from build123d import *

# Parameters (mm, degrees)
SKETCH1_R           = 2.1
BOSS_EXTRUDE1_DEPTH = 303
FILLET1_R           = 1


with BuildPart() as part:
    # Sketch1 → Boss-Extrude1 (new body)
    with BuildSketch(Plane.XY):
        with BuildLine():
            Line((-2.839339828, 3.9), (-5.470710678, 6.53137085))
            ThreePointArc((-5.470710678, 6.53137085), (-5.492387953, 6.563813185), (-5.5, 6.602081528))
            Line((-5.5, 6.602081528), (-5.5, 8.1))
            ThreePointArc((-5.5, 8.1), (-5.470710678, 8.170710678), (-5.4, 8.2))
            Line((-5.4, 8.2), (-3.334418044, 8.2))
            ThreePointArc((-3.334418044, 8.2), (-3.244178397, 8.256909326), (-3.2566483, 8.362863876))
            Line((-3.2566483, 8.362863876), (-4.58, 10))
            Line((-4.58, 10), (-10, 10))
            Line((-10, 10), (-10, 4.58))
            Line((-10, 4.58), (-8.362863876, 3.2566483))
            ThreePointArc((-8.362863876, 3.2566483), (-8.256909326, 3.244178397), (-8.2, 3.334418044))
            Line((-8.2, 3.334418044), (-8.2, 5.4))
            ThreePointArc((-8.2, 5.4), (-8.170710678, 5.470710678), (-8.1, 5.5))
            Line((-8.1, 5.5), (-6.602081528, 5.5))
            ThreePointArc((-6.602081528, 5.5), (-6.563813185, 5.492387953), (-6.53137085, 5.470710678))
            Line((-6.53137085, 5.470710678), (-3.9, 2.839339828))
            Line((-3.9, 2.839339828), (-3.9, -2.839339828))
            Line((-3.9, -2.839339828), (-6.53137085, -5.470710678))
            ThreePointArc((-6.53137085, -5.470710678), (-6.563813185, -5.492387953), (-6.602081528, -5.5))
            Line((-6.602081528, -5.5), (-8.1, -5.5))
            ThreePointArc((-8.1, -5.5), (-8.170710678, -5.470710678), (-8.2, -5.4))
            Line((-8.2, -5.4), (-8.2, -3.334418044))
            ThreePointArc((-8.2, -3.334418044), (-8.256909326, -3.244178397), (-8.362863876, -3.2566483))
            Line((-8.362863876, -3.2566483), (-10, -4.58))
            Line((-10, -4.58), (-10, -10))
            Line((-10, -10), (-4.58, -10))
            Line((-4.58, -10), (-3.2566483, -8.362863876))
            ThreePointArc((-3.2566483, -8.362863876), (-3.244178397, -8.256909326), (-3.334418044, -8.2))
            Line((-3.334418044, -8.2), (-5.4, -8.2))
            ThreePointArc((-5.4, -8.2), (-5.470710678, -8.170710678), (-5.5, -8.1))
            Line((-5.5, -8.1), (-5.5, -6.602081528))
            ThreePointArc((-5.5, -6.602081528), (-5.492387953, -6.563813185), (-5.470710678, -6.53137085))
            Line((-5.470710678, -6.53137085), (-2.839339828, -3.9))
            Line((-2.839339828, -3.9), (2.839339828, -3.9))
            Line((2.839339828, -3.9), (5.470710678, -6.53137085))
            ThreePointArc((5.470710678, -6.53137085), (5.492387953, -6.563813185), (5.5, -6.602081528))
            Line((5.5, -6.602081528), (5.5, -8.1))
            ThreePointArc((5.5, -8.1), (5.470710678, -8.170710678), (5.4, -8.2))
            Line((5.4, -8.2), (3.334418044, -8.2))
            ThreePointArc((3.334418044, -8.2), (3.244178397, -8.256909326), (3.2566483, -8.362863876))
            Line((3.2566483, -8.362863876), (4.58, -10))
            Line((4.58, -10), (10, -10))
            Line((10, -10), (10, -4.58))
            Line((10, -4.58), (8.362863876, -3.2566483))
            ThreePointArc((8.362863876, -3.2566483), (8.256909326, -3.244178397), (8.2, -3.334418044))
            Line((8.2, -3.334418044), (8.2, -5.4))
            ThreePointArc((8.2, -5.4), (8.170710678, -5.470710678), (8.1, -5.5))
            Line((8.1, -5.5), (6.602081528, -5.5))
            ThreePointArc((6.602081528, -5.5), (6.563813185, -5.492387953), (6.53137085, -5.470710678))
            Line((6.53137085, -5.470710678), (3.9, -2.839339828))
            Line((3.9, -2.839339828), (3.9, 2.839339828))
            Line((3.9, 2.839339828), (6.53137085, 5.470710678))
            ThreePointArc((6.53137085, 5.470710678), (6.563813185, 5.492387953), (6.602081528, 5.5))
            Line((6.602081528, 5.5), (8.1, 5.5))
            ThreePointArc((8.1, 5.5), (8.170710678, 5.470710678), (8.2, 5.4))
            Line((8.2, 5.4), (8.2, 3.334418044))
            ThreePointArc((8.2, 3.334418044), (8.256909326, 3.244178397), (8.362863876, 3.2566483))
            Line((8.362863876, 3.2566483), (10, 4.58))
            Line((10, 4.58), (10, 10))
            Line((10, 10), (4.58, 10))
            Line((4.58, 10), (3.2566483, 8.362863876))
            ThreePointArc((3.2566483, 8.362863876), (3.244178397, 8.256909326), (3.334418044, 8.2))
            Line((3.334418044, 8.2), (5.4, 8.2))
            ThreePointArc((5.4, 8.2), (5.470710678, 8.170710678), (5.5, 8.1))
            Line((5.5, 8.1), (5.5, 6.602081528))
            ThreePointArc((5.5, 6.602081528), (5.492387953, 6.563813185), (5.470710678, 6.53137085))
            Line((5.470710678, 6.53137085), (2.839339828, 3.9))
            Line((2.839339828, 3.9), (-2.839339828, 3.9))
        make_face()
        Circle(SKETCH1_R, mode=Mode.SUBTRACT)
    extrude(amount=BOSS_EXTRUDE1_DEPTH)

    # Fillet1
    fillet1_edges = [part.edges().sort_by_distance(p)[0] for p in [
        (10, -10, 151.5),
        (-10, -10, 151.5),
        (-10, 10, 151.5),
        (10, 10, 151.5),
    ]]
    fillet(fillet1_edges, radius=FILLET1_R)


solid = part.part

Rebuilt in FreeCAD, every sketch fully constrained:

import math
import FreeCAD as App
import Part
import Sketcher

V = App.Vector


def edges_at(feature, points):
    """Names of the edges that pass closest to the given points."""
    edges = feature.Shape.Edges
    near = lambda p: min(range(len(edges)), key=lambda i: edges[i].distToShape(Part.Vertex(*p))[0])
    return sorted({f"Edge{near(p) + 1}" for p in points})

doc = App.newDocument("Part")
body = doc.addObject("PartDesign::Body", "Body")

sketch1 = body.newObject("Sketcher::SketchObject", "Sketch")
sketch1.AttachmentSupport = (doc.getObject("XY_Plane"), [""])
sketch1.MapMode = "FlatFace"
sketch1.addGeometry(Part.LineSegment(V(-2.84, 3.9, 0), V(-5.47, 6.53, 0)), False)
sketch1.addGeometry(Part.ArcOfCircle(Part.Circle(V(-5.4, 6.6, 0), V(0, 0, 1), 0.1), math.radians(-180), math.radians(-135)), False)
sketch1.addGeometry(Part.LineSegment(V(-5.5, 6.6, 0), V(-5.5, 8.1, 0)), False)
sketch1.addGeometry(Part.ArcOfCircle(Part.Circle(V(-5.4, 8.1, 0), V(0, 0, 1), 0.1), math.radians(90), math.radians(180)), False)
sketch1.addGeometry(Part.LineSegment(V(-5.4, 8.2, 0), V(-3.33, 8.2, 0)), False)
sketch1.addGeometry(Part.ArcOfCircle(Part.Circle(V(-3.33, 8.3, 0), V(0, 0, 1), 0.1), math.radians(-90), math.radians(39)), False)
sketch1.addGeometry(Part.LineSegment(V(-3.26, 8.36, 0), V(-4.58, 10, 0)), False)
sketch1.addGeometry(Part.LineSegment(V(-4.58, 10, 0), V(-10, 10, 0)), False)
sketch1.addGeometry(Part.LineSegment(V(-10, 10, 0), V(-10, 4.58, 0)), False)
sketch1.addGeometry(Part.LineSegment(V(-10, 4.58, 0), V(-8.36, 3.26, 0)), False)
sketch1.addGeometry(Part.ArcOfCircle(Part.Circle(V(-8.3, 3.33, 0), V(0, 0, 1), 0.1), math.radians(-129), math.radians(0)), False)
sketch1.addGeometry(Part.LineSegment(V(-8.2, 3.33, 0), V(-8.2, 5.4, 0)), False)
sketch1.addGeometry(Part.ArcOfCircle(Part.Circle(V(-8.1, 5.4, 0), V(0, 0, 1), 0.1), math.radians(90), math.radians(180)), False)
sketch1.addGeometry(Part.LineSegment(V(-8.1, 5.5, 0), V(-6.6, 5.5, 0)), False)
sketch1.addGeometry(Part.ArcOfCircle(Part.Circle(V(-6.6, 5.4, 0), V(0, 0, 1), 0.1), math.radians(45), math.radians(90)), False)
sketch1.addGeometry(Part.LineSegment(V(-6.53, 5.47, 0), V(-3.9, 2.84, 0)), False)
sketch1.addGeometry(Part.LineSegment(V(-3.9, 2.84, 0), V(-3.9, -2.84, 0)), False)
sketch1.addGeometry(Part.LineSegment(V(-3.9, -2.84, 0), V(-6.53, -5.47, 0)), False)
sketch1.addGeometry(Part.ArcOfCircle(Part.Circle(V(-6.6, -5.4, 0), V(0, 0, 1), 0.1), math.radians(-90), math.radians(-45)), False)
sketch1.addGeometry(Part.LineSegment(V(-6.6, -5.5, 0), V(-8.1, -5.5, 0)), False)
sketch1.addGeometry(Part.ArcOfCircle(Part.Circle(V(-8.1, -5.4, 0), V(0, 0, 1), 0.1), math.radians(180), math.radians(270)), False)
sketch1.addGeometry(Part.LineSegment(V(-8.2, -5.4, 0), V(-8.2, -3.33, 0)), False)
sketch1.addGeometry(Part.ArcOfCircle(Part.Circle(V(-8.3, -3.33, 0), V(0, 0, 1), 0.1), math.radians(0), math.radians(129)), False)
sketch1.addGeometry(Part.LineSegment(V(-8.36, -3.26, 0), V(-10, -4.58, 0)), False)
sketch1.addGeometry(Part.LineSegment(V(-10, -4.58, 0), V(-10, -10, 0)), False)
sketch1.addGeometry(Part.LineSegment(V(-10, -10, 0), V(-4.58, -10, 0)), False)
sketch1.addGeometry(Part.LineSegment(V(-4.58, -10, 0), V(-3.26, -8.36, 0)), False)
sketch1.addGeometry(Part.ArcOfCircle(Part.Circle(V(-3.33, -8.3, 0), V(0, 0, 1), 0.1), math.radians(-39), math.radians(90)), False)
sketch1.addGeometry(Part.LineSegment(V(-3.33, -8.2, 0), V(-5.4, -8.2, 0)), False)
sketch1.addGeometry(Part.ArcOfCircle(Part.Circle(V(-5.4, -8.1, 0), V(0, 0, 1), 0.1), math.radians(180), math.radians(270)), False)
sketch1.addGeometry(Part.LineSegment(V(-5.5, -8.1, 0), V(-5.5, -6.6, 0)), False)
sketch1.addGeometry(Part.ArcOfCircle(Part.Circle(V(-5.4, -6.6, 0), V(0, 0, 1), 0.1), math.radians(135), math.radians(180)), False)
sketch1.addGeometry(Part.LineSegment(V(-5.47, -6.53, 0), V(-2.84, -3.9, 0)), False)
sketch1.addGeometry(Part.LineSegment(V(-2.84, -3.9, 0), V(2.84, -3.9, 0)), False)
sketch1.addGeometry(Part.LineSegment(V(2.84, -3.9, 0), V(5.47, -6.53, 0)), False)
sketch1.addGeometry(Part.ArcOfCircle(Part.Circle(V(5.4, -6.6, 0), V(0, 0, 1), 0.1), math.radians(0), math.radians(45)), False)
sketch1.addGeometry(Part.LineSegment(V(5.5, -6.6, 0), V(5.5, -8.1, 0)), False)
sketch1.addGeometry(Part.ArcOfCircle(Part.Circle(V(5.4, -8.1, 0), V(0, 0, 1), 0.1), math.radians(-90), math.radians(0)), False)
sketch1.addGeometry(Part.LineSegment(V(5.4, -8.2, 0), V(3.33, -8.2, 0)), False)
sketch1.addGeometry(Part.ArcOfCircle(Part.Circle(V(3.33, -8.3, 0), V(0, 0, 1), 0.1), math.radians(90), math.radians(219)), False)
sketch1.addGeometry(Part.LineSegment(V(3.26, -8.36, 0), V(4.58, -10, 0)), False)
sketch1.addGeometry(Part.LineSegment(V(4.58, -10, 0), V(10, -10, 0)), False)
sketch1.addGeometry(Part.LineSegment(V(10, -10, 0), V(10, -4.58, 0)), False)
sketch1.addGeometry(Part.LineSegment(V(10, -4.58, 0), V(8.36, -3.26, 0)), False)
sketch1.addGeometry(Part.ArcOfCircle(Part.Circle(V(8.3, -3.33, 0), V(0, 0, 1), 0.1), math.radians(51), math.radians(180)), False)
sketch1.addGeometry(Part.LineSegment(V(8.2, -3.33, 0), V(8.2, -5.4, 0)), False)
sketch1.addGeometry(Part.ArcOfCircle(Part.Circle(V(8.1, -5.4, 0), V(0, 0, 1), 0.1), math.radians(-90), math.radians(0)), False)
sketch1.addGeometry(Part.LineSegment(V(8.1, -5.5, 0), V(6.6, -5.5, 0)), False)
sketch1.addGeometry(Part.ArcOfCircle(Part.Circle(V(6.6, -5.4, 0), V(0, 0, 1), 0.1), math.radians(-135), math.radians(-90)), False)
sketch1.addGeometry(Part.LineSegment(V(6.53, -5.47, 0), V(3.9, -2.84, 0)), False)
sketch1.addGeometry(Part.LineSegment(V(3.9, -2.84, 0), V(3.9, 2.84, 0)), False)
sketch1.addGeometry(Part.LineSegment(V(3.9, 2.84, 0), V(6.53, 5.47, 0)), False)
sketch1.addGeometry(Part.ArcOfCircle(Part.Circle(V(6.6, 5.4, 0), V(0, 0, 1), 0.1), math.radians(90), math.radians(135)), False)
sketch1.addGeometry(Part.LineSegment(V(6.6, 5.5, 0), V(8.1, 5.5, 0)), False)
sketch1.addGeometry(Part.ArcOfCircle(Part.Circle(V(8.1, 5.4, 0), V(0, 0, 1), 0.1), math.radians(0), math.radians(90)), False)
sketch1.addGeometry(Part.LineSegment(V(8.2, 5.4, 0), V(8.2, 3.33, 0)), False)
sketch1.addGeometry(Part.ArcOfCircle(Part.Circle(V(8.3, 3.33, 0), V(0, 0, 1), 0.1), math.radians(180), math.radians(309)), False)
sketch1.addGeometry(Part.LineSegment(V(8.36, 3.26, 0), V(10, 4.58, 0)), False)
sketch1.addGeometry(Part.LineSegment(V(10, 4.58, 0), V(10, 10, 0)), False)
sketch1.addGeometry(Part.LineSegment(V(10, 10, 0), V(4.58, 10, 0)), False)
sketch1.addGeometry(Part.LineSegment(V(4.58, 10, 0), V(3.26, 8.36, 0)), False)
sketch1.addGeometry(Part.ArcOfCircle(Part.Circle(V(3.33, 8.3, 0), V(0, 0, 1), 0.1), math.radians(141), math.radians(270)), False)
sketch1.addGeometry(Part.LineSegment(V(3.33, 8.2, 0), V(5.4, 8.2, 0)), False)
sketch1.addGeometry(Part.ArcOfCircle(Part.Circle(V(5.4, 8.1, 0), V(0, 0, 1), 0.1), math.radians(0), math.radians(90)), False)
sketch1.addGeometry(Part.LineSegment(V(5.5, 8.1, 0), V(5.5, 6.6, 0)), False)
sketch1.addGeometry(Part.ArcOfCircle(Part.Circle(V(5.4, 6.6, 0), V(0, 0, 1), 0.1), math.radians(-45), math.radians(0)), False)
sketch1.addGeometry(Part.LineSegment(V(5.47, 6.53, 0), V(2.84, 3.9, 0)), False)
sketch1.addGeometry(Part.LineSegment(V(2.84, 3.9, 0), V(-2.84, 3.9, 0)), False)
sketch1.addGeometry(Part.Circle(V(0, 0, 0), V(0, 0, 1), 2.1), False)
sketch1.addConstraint(Sketcher.Constraint("Tangent", 0, 2, 1, 2))
sketch1.addConstraint(Sketcher.Constraint("Tangent", 1, 1, 2, 1))
sketch1.addConstraint(Sketcher.Constraint("Tangent", 2, 2, 3, 2))
sketch1.addConstraint(Sketcher.Constraint("Tangent", 3, 1, 4, 1))
sketch1.addConstraint(Sketcher.Constraint("Tangent", 4, 2, 5, 1))
sketch1.addConstraint(Sketcher.Constraint("Tangent", 5, 2, 6, 1))
sketch1.addConstraint(Sketcher.Constraint("Coincident", 6, 2, 7, 1))
sketch1.addConstraint(Sketcher.Constraint("Coincident", 7, 2, 8, 1))
sketch1.addConstraint(Sketcher.Constraint("Coincident", 8, 2, 9, 1))
sketch1.addConstraint(Sketcher.Constraint("Tangent", 9, 2, 10, 1))
sketch1.addConstraint(Sketcher.Constraint("Tangent", 10, 2, 11, 1))
sketch1.addConstraint(Sketcher.Constraint("Tangent", 11, 2, 12, 2))
sketch1.addConstraint(Sketcher.Constraint("Tangent", 12, 1, 13, 1))
sketch1.addConstraint(Sketcher.Constraint("Tangent", 13, 2, 14, 2))
sketch1.addConstraint(Sketcher.Constraint("Tangent", 14, 1, 15, 1))
sketch1.addConstraint(Sketcher.Constraint("Coincident", 15, 2, 16, 1))
sketch1.addConstraint(Sketcher.Constraint("Coincident", 16, 2, 17, 1))
sketch1.addConstraint(Sketcher.Constraint("Tangent", 17, 2, 18, 2))
sketch1.addConstraint(Sketcher.Constraint("Tangent", 18, 1, 19, 1))
sketch1.addConstraint(Sketcher.Constraint("Tangent", 19, 2, 20, 2))
sketch1.addConstraint(Sketcher.Constraint("Tangent", 20, 1, 21, 1))
sketch1.addConstraint(Sketcher.Constraint("Tangent", 21, 2, 22, 1))
sketch1.addConstraint(Sketcher.Constraint("Tangent", 22, 2, 23, 1))
sketch1.addConstraint(Sketcher.Constraint("Coincident", 23, 2, 24, 1))
sketch1.addConstraint(Sketcher.Constraint("Coincident", 24, 2, 25, 1))
sketch1.addConstraint(Sketcher.Constraint("Coincident", 25, 2, 26, 1))
sketch1.addConstraint(Sketcher.Constraint("Tangent", 26, 2, 27, 1))
sketch1.addConstraint(Sketcher.Constraint("Tangent", 27, 2, 28, 1))
sketch1.addConstraint(Sketcher.Constraint("Tangent", 28, 2, 29, 2))
sketch1.addConstraint(Sketcher.Constraint("Tangent", 29, 1, 30, 1))
sketch1.addConstraint(Sketcher.Constraint("Tangent", 30, 2, 31, 2))
sketch1.addConstraint(Sketcher.Constraint("Tangent", 31, 1, 32, 1))
sketch1.addConstraint(Sketcher.Constraint("Coincident", 32, 2, 33, 1))
sketch1.addConstraint(Sketcher.Constraint("Coincident", 33, 2, 34, 1))
sketch1.addConstraint(Sketcher.Constraint("Tangent", 34, 2, 35, 2))
sketch1.addConstraint(Sketcher.Constraint("Tangent", 35, 1, 36, 1))
sketch1.addConstraint(Sketcher.Constraint("Tangent", 36, 2, 37, 2))
sketch1.addConstraint(Sketcher.Constraint("Tangent", 37, 1, 38, 1))
sketch1.addConstraint(Sketcher.Constraint("Tangent", 38, 2, 39, 1))
sketch1.addConstraint(Sketcher.Constraint("Tangent", 39, 2, 40, 1))
sketch1.addConstraint(Sketcher.Constraint("Coincident", 40, 2, 41, 1))
sketch1.addConstraint(Sketcher.Constraint("Coincident", 41, 2, 42, 1))
sketch1.addConstraint(Sketcher.Constraint("Coincident", 42, 2, 43, 1))
sketch1.addConstraint(Sketcher.Constraint("Tangent", 43, 2, 44, 1))
sketch1.addConstraint(Sketcher.Constraint("Tangent", 44, 2, 45, 1))
sketch1.addConstraint(Sketcher.Constraint("Tangent", 45, 2, 46, 2))
sketch1.addConstraint(Sketcher.Constraint("Tangent", 46, 1, 47, 1))
sketch1.addConstraint(Sketcher.Constraint("Tangent", 47, 2, 48, 2))
sketch1.addConstraint(Sketcher.Constraint("Tangent", 48, 1, 49, 1))
sketch1.addConstraint(Sketcher.Constraint("Coincident", 49, 2, 50, 1))
sketch1.addConstraint(Sketcher.Constraint("Coincident", 50, 2, 51, 1))
sketch1.addConstraint(Sketcher.Constraint("Tangent", 51, 2, 52, 2))
sketch1.addConstraint(Sketcher.Constraint("Tangent", 52, 1, 53, 1))
sketch1.addConstraint(Sketcher.Constraint("Tangent", 53, 2, 54, 2))
sketch1.addConstraint(Sketcher.Constraint("Tangent", 54, 1, 55, 1))
sketch1.addConstraint(Sketcher.Constraint("Tangent", 55, 2, 56, 1))
sketch1.addConstraint(Sketcher.Constraint("Tangent", 56, 2, 57, 1))
sketch1.addConstraint(Sketcher.Constraint("Coincident", 57, 2, 58, 1))
sketch1.addConstraint(Sketcher.Constraint("Coincident", 58, 2, 59, 1))
sketch1.addConstraint(Sketcher.Constraint("Coincident", 59, 2, 60, 1))
sketch1.addConstraint(Sketcher.Constraint("Tangent", 60, 2, 61, 1))
sketch1.addConstraint(Sketcher.Constraint("Tangent", 61, 2, 62, 1))
sketch1.addConstraint(Sketcher.Constraint("Tangent", 62, 2, 63, 2))
sketch1.addConstraint(Sketcher.Constraint("Tangent", 63, 1, 64, 1))
sketch1.addConstraint(Sketcher.Constraint("Tangent", 64, 2, 65, 2))
sketch1.addConstraint(Sketcher.Constraint("Tangent", 65, 1, 66, 1))
sketch1.addConstraint(Sketcher.Constraint("Coincident", 66, 2, 67, 1))
sketch1.addConstraint(Sketcher.Constraint("Coincident", 67, 2, 0, 1))
sketch1.addConstraint(Sketcher.Constraint("Vertical", 2))
sketch1.addConstraint(Sketcher.Constraint("Horizontal", 4))
sketch1.addConstraint(Sketcher.Constraint("Horizontal", 7))
sketch1.addConstraint(Sketcher.Constraint("Vertical", 8))
sketch1.addConstraint(Sketcher.Constraint("Vertical", 11))
sketch1.addConstraint(Sketcher.Constraint("Horizontal", 13))
sketch1.addConstraint(Sketcher.Constraint("Vertical", 16))
sketch1.addConstraint(Sketcher.Constraint("Horizontal", 19))
sketch1.addConstraint(Sketcher.Constraint("Vertical", 21))
sketch1.addConstraint(Sketcher.Constraint("Vertical", 24))
sketch1.addConstraint(Sketcher.Constraint("Horizontal", 25))
sketch1.addConstraint(Sketcher.Constraint("Horizontal", 28))
sketch1.addConstraint(Sketcher.Constraint("Vertical", 30))
sketch1.addConstraint(Sketcher.Constraint("Horizontal", 33))
sketch1.addConstraint(Sketcher.Constraint("Vertical", 36))
sketch1.addConstraint(Sketcher.Constraint("Horizontal", 38))
sketch1.addConstraint(Sketcher.Constraint("Horizontal", 41))
sketch1.addConstraint(Sketcher.Constraint("Vertical", 42))
sketch1.addConstraint(Sketcher.Constraint("Vertical", 45))
sketch1.addConstraint(Sketcher.Constraint("Horizontal", 47))
sketch1.addConstraint(Sketcher.Constraint("Vertical", 50))
sketch1.addConstraint(Sketcher.Constraint("Horizontal", 53))
sketch1.addConstraint(Sketcher.Constraint("Vertical", 55))
sketch1.addConstraint(Sketcher.Constraint("Vertical", 58))
sketch1.addConstraint(Sketcher.Constraint("Horizontal", 59))
sketch1.addConstraint(Sketcher.Constraint("Horizontal", 62))
sketch1.addConstraint(Sketcher.Constraint("Vertical", 64))
sketch1.addConstraint(Sketcher.Constraint("Horizontal", 67))
sketch1.addConstraint(Sketcher.Constraint("Coincident", 68, 3, -1, 1))
sketch1.addConstraint(Sketcher.Constraint("Equal", 1, 3))
sketch1.addConstraint(Sketcher.Constraint("Equal", 3, 5))
sketch1.addConstraint(Sketcher.Constraint("Equal", 5, 10))
sketch1.addConstraint(Sketcher.Constraint("Equal", 10, 12))
sketch1.addConstraint(Sketcher.Constraint("Equal", 12, 14))
sketch1.addConstraint(Sketcher.Constraint("Equal", 14, 18))
sketch1.addConstraint(Sketcher.Constraint("Equal", 18, 20))
sketch1.addConstraint(Sketcher.Constraint("Equal", 20, 22))
sketch1.addConstraint(Sketcher.Constraint("Equal", 22, 27))
sketch1.addConstraint(Sketcher.Constraint("Equal", 27, 29))
sketch1.addConstraint(Sketcher.Constraint("Equal", 29, 31))
sketch1.addConstraint(Sketcher.Constraint("Equal", 31, 35))
sketch1.addConstraint(Sketcher.Constraint("Equal", 35, 37))
sketch1.addConstraint(Sketcher.Constraint("Equal", 37, 39))
sketch1.addConstraint(Sketcher.Constraint("Equal", 39, 44))
sketch1.addConstraint(Sketcher.Constraint("Equal", 44, 46))
sketch1.addConstraint(Sketcher.Constraint("Equal", 46, 48))
sketch1.addConstraint(Sketcher.Constraint("Equal", 48, 52))
sketch1.addConstraint(Sketcher.Constraint("Equal", 52, 54))
sketch1.addConstraint(Sketcher.Constraint("Equal", 54, 56))
sketch1.addConstraint(Sketcher.Constraint("Equal", 56, 61))
sketch1.addConstraint(Sketcher.Constraint("Equal", 61, 63))
sketch1.addConstraint(Sketcher.Constraint("Equal", 63, 65))
sketch1.addConstraint(Sketcher.Constraint("Symmetric", 1, 3, 35, 3, -1, 1))
sketch1.addConstraint(Sketcher.Constraint("Symmetric", 5, 3, 39, 3, -1, 1))
sketch1.addConstraint(Sketcher.Constraint("Symmetric", 10, 3, 44, 3, -1, 1))
sketch1.addConstraint(Sketcher.Constraint("Symmetric", 14, 3, 48, 3, -1, 1))
sketch1.addConstraint(Sketcher.Constraint("Symmetric", 18, 3, 52, 3, -1, 1))
sketch1.addConstraint(Sketcher.Constraint("Symmetric", 22, 3, 56, 3, -1, 1))
sketch1.addConstraint(Sketcher.Constraint("Symmetric", 27, 3, 61, 3, -1, 1))
sketch1.addConstraint(Sketcher.Constraint("Symmetric", 31, 3, 65, 3, -1, 1))
sketch1.addConstraint(Sketcher.Constraint("Symmetric", 6, 2, 40, 2, -1, 1))
sketch1.addConstraint(Sketcher.Constraint("Symmetric", 8, 2, 42, 2, -1, 1))
sketch1.addConstraint(Sketcher.Constraint("Symmetric", 15, 2, 49, 2, -1, 1))
sketch1.addConstraint(Sketcher.Constraint("Symmetric", 23, 2, 57, 2, -1, 1))
sketch1.addConstraint(Sketcher.Constraint("Symmetric", 25, 2, 59, 2, -1, 1))
sketch1.addConstraint(Sketcher.Constraint("Symmetric", 32, 2, 66, 2, -1, 1))
sketch1.addConstraint(Sketcher.Constraint("Symmetric", 31, 3, 35, 3, -2))
sketch1.addConstraint(Sketcher.Constraint("Symmetric", 27, 3, 39, 3, -2))
sketch1.addConstraint(Sketcher.Constraint("Symmetric", 22, 3, 44, 3, -2))
sketch1.addConstraint(Sketcher.Constraint("Symmetric", 18, 3, 48, 3, -2))
sketch1.addConstraint(Sketcher.Constraint("Symmetric", 25, 2, 40, 2, -2))
sketch1.addConstraint(Sketcher.Constraint("Symmetric", 23, 2, 42, 2, -2))
sketch1.addConstraint(Sketcher.Constraint("Parallel", 0, 15))
sketch1.addConstraint(Sketcher.Constraint("Perpendicular", 15, 17))
sketch1.addConstraint(Sketcher.Constraint("Perpendicular", 6, 23))
sketch1.addConstraint(Sketcher.Constraint("Parallel", 17, 32))
sketch1.addConstraint(Sketcher.Constraint("Perpendicular", 32, 34))
sketch1.addConstraint(Sketcher.Constraint("Perpendicular", 49, 51))
sketch1.addConstraint(Sketcher.Constraint("Horizontal", 31, 1, 34, 2))
sketch1.addConstraint(Sketcher.Constraint("Equal", 53, 2))
sketch1.addConstraint(Sketcher.Constraint("Equal", 59, 8))
sketch1.addConstraint(Sketcher.Constraint("Equal", 62, 11))
sketch1.addConstraint(Sketcher.Constraint("Equal", 67, 16))
sketch1.addConstraint(Sketcher.Constraint("Equal", 6, 9))
sketch1.addConstraint(Sketcher.Constraint("Equal", 0, 15))
sketch1.addConstraint(Sketcher.Constraint("Diameter", 68, 4.2))
sketch1.addConstraint(Sketcher.Constraint("Radius", 1, 0.1))
sketch1.addConstraint(Sketcher.Constraint("DistanceY", -1, 1, 6, 2, 10.0))
sketch1.addConstraint(Sketcher.Constraint("DistanceX", 7, 2, 7, 1, 5.42))
sketch1.addConstraint(Sketcher.Constraint("DistanceX", 1, 3, -1, 1, 5.4))
sketch1.addConstraint(Sketcher.Constraint("DistanceY", -1, 1, 3, 3, 8.1))
sketch1.addConstraint(Sketcher.Constraint("DistanceX", 15, 2, -1, 1, 3.9))
sketch1.addConstraint(Sketcher.Constraint("DistanceX", 4, 1, 4, 2, 2.065582))
sketch1.addConstraint(Sketcher.Constraint("DistanceX", 13, 1, 13, 2, 1.497918))
pad1 = body.newObject("PartDesign::Pad", "Pad")
pad1.Profile = sketch1
pad1.Length = 303
doc.recompute()

fillet = body.newObject("PartDesign::Fillet", "Fillet")
fillet.Base = (pad1, edges_at(pad1, [
    (10, -10, 151.5),
    (-10, -10, 151.5),
    (-10, 10, 151.5),
    (10, 10, 151.5),
]))
fillet.Radius = 1

doc.recompute()
